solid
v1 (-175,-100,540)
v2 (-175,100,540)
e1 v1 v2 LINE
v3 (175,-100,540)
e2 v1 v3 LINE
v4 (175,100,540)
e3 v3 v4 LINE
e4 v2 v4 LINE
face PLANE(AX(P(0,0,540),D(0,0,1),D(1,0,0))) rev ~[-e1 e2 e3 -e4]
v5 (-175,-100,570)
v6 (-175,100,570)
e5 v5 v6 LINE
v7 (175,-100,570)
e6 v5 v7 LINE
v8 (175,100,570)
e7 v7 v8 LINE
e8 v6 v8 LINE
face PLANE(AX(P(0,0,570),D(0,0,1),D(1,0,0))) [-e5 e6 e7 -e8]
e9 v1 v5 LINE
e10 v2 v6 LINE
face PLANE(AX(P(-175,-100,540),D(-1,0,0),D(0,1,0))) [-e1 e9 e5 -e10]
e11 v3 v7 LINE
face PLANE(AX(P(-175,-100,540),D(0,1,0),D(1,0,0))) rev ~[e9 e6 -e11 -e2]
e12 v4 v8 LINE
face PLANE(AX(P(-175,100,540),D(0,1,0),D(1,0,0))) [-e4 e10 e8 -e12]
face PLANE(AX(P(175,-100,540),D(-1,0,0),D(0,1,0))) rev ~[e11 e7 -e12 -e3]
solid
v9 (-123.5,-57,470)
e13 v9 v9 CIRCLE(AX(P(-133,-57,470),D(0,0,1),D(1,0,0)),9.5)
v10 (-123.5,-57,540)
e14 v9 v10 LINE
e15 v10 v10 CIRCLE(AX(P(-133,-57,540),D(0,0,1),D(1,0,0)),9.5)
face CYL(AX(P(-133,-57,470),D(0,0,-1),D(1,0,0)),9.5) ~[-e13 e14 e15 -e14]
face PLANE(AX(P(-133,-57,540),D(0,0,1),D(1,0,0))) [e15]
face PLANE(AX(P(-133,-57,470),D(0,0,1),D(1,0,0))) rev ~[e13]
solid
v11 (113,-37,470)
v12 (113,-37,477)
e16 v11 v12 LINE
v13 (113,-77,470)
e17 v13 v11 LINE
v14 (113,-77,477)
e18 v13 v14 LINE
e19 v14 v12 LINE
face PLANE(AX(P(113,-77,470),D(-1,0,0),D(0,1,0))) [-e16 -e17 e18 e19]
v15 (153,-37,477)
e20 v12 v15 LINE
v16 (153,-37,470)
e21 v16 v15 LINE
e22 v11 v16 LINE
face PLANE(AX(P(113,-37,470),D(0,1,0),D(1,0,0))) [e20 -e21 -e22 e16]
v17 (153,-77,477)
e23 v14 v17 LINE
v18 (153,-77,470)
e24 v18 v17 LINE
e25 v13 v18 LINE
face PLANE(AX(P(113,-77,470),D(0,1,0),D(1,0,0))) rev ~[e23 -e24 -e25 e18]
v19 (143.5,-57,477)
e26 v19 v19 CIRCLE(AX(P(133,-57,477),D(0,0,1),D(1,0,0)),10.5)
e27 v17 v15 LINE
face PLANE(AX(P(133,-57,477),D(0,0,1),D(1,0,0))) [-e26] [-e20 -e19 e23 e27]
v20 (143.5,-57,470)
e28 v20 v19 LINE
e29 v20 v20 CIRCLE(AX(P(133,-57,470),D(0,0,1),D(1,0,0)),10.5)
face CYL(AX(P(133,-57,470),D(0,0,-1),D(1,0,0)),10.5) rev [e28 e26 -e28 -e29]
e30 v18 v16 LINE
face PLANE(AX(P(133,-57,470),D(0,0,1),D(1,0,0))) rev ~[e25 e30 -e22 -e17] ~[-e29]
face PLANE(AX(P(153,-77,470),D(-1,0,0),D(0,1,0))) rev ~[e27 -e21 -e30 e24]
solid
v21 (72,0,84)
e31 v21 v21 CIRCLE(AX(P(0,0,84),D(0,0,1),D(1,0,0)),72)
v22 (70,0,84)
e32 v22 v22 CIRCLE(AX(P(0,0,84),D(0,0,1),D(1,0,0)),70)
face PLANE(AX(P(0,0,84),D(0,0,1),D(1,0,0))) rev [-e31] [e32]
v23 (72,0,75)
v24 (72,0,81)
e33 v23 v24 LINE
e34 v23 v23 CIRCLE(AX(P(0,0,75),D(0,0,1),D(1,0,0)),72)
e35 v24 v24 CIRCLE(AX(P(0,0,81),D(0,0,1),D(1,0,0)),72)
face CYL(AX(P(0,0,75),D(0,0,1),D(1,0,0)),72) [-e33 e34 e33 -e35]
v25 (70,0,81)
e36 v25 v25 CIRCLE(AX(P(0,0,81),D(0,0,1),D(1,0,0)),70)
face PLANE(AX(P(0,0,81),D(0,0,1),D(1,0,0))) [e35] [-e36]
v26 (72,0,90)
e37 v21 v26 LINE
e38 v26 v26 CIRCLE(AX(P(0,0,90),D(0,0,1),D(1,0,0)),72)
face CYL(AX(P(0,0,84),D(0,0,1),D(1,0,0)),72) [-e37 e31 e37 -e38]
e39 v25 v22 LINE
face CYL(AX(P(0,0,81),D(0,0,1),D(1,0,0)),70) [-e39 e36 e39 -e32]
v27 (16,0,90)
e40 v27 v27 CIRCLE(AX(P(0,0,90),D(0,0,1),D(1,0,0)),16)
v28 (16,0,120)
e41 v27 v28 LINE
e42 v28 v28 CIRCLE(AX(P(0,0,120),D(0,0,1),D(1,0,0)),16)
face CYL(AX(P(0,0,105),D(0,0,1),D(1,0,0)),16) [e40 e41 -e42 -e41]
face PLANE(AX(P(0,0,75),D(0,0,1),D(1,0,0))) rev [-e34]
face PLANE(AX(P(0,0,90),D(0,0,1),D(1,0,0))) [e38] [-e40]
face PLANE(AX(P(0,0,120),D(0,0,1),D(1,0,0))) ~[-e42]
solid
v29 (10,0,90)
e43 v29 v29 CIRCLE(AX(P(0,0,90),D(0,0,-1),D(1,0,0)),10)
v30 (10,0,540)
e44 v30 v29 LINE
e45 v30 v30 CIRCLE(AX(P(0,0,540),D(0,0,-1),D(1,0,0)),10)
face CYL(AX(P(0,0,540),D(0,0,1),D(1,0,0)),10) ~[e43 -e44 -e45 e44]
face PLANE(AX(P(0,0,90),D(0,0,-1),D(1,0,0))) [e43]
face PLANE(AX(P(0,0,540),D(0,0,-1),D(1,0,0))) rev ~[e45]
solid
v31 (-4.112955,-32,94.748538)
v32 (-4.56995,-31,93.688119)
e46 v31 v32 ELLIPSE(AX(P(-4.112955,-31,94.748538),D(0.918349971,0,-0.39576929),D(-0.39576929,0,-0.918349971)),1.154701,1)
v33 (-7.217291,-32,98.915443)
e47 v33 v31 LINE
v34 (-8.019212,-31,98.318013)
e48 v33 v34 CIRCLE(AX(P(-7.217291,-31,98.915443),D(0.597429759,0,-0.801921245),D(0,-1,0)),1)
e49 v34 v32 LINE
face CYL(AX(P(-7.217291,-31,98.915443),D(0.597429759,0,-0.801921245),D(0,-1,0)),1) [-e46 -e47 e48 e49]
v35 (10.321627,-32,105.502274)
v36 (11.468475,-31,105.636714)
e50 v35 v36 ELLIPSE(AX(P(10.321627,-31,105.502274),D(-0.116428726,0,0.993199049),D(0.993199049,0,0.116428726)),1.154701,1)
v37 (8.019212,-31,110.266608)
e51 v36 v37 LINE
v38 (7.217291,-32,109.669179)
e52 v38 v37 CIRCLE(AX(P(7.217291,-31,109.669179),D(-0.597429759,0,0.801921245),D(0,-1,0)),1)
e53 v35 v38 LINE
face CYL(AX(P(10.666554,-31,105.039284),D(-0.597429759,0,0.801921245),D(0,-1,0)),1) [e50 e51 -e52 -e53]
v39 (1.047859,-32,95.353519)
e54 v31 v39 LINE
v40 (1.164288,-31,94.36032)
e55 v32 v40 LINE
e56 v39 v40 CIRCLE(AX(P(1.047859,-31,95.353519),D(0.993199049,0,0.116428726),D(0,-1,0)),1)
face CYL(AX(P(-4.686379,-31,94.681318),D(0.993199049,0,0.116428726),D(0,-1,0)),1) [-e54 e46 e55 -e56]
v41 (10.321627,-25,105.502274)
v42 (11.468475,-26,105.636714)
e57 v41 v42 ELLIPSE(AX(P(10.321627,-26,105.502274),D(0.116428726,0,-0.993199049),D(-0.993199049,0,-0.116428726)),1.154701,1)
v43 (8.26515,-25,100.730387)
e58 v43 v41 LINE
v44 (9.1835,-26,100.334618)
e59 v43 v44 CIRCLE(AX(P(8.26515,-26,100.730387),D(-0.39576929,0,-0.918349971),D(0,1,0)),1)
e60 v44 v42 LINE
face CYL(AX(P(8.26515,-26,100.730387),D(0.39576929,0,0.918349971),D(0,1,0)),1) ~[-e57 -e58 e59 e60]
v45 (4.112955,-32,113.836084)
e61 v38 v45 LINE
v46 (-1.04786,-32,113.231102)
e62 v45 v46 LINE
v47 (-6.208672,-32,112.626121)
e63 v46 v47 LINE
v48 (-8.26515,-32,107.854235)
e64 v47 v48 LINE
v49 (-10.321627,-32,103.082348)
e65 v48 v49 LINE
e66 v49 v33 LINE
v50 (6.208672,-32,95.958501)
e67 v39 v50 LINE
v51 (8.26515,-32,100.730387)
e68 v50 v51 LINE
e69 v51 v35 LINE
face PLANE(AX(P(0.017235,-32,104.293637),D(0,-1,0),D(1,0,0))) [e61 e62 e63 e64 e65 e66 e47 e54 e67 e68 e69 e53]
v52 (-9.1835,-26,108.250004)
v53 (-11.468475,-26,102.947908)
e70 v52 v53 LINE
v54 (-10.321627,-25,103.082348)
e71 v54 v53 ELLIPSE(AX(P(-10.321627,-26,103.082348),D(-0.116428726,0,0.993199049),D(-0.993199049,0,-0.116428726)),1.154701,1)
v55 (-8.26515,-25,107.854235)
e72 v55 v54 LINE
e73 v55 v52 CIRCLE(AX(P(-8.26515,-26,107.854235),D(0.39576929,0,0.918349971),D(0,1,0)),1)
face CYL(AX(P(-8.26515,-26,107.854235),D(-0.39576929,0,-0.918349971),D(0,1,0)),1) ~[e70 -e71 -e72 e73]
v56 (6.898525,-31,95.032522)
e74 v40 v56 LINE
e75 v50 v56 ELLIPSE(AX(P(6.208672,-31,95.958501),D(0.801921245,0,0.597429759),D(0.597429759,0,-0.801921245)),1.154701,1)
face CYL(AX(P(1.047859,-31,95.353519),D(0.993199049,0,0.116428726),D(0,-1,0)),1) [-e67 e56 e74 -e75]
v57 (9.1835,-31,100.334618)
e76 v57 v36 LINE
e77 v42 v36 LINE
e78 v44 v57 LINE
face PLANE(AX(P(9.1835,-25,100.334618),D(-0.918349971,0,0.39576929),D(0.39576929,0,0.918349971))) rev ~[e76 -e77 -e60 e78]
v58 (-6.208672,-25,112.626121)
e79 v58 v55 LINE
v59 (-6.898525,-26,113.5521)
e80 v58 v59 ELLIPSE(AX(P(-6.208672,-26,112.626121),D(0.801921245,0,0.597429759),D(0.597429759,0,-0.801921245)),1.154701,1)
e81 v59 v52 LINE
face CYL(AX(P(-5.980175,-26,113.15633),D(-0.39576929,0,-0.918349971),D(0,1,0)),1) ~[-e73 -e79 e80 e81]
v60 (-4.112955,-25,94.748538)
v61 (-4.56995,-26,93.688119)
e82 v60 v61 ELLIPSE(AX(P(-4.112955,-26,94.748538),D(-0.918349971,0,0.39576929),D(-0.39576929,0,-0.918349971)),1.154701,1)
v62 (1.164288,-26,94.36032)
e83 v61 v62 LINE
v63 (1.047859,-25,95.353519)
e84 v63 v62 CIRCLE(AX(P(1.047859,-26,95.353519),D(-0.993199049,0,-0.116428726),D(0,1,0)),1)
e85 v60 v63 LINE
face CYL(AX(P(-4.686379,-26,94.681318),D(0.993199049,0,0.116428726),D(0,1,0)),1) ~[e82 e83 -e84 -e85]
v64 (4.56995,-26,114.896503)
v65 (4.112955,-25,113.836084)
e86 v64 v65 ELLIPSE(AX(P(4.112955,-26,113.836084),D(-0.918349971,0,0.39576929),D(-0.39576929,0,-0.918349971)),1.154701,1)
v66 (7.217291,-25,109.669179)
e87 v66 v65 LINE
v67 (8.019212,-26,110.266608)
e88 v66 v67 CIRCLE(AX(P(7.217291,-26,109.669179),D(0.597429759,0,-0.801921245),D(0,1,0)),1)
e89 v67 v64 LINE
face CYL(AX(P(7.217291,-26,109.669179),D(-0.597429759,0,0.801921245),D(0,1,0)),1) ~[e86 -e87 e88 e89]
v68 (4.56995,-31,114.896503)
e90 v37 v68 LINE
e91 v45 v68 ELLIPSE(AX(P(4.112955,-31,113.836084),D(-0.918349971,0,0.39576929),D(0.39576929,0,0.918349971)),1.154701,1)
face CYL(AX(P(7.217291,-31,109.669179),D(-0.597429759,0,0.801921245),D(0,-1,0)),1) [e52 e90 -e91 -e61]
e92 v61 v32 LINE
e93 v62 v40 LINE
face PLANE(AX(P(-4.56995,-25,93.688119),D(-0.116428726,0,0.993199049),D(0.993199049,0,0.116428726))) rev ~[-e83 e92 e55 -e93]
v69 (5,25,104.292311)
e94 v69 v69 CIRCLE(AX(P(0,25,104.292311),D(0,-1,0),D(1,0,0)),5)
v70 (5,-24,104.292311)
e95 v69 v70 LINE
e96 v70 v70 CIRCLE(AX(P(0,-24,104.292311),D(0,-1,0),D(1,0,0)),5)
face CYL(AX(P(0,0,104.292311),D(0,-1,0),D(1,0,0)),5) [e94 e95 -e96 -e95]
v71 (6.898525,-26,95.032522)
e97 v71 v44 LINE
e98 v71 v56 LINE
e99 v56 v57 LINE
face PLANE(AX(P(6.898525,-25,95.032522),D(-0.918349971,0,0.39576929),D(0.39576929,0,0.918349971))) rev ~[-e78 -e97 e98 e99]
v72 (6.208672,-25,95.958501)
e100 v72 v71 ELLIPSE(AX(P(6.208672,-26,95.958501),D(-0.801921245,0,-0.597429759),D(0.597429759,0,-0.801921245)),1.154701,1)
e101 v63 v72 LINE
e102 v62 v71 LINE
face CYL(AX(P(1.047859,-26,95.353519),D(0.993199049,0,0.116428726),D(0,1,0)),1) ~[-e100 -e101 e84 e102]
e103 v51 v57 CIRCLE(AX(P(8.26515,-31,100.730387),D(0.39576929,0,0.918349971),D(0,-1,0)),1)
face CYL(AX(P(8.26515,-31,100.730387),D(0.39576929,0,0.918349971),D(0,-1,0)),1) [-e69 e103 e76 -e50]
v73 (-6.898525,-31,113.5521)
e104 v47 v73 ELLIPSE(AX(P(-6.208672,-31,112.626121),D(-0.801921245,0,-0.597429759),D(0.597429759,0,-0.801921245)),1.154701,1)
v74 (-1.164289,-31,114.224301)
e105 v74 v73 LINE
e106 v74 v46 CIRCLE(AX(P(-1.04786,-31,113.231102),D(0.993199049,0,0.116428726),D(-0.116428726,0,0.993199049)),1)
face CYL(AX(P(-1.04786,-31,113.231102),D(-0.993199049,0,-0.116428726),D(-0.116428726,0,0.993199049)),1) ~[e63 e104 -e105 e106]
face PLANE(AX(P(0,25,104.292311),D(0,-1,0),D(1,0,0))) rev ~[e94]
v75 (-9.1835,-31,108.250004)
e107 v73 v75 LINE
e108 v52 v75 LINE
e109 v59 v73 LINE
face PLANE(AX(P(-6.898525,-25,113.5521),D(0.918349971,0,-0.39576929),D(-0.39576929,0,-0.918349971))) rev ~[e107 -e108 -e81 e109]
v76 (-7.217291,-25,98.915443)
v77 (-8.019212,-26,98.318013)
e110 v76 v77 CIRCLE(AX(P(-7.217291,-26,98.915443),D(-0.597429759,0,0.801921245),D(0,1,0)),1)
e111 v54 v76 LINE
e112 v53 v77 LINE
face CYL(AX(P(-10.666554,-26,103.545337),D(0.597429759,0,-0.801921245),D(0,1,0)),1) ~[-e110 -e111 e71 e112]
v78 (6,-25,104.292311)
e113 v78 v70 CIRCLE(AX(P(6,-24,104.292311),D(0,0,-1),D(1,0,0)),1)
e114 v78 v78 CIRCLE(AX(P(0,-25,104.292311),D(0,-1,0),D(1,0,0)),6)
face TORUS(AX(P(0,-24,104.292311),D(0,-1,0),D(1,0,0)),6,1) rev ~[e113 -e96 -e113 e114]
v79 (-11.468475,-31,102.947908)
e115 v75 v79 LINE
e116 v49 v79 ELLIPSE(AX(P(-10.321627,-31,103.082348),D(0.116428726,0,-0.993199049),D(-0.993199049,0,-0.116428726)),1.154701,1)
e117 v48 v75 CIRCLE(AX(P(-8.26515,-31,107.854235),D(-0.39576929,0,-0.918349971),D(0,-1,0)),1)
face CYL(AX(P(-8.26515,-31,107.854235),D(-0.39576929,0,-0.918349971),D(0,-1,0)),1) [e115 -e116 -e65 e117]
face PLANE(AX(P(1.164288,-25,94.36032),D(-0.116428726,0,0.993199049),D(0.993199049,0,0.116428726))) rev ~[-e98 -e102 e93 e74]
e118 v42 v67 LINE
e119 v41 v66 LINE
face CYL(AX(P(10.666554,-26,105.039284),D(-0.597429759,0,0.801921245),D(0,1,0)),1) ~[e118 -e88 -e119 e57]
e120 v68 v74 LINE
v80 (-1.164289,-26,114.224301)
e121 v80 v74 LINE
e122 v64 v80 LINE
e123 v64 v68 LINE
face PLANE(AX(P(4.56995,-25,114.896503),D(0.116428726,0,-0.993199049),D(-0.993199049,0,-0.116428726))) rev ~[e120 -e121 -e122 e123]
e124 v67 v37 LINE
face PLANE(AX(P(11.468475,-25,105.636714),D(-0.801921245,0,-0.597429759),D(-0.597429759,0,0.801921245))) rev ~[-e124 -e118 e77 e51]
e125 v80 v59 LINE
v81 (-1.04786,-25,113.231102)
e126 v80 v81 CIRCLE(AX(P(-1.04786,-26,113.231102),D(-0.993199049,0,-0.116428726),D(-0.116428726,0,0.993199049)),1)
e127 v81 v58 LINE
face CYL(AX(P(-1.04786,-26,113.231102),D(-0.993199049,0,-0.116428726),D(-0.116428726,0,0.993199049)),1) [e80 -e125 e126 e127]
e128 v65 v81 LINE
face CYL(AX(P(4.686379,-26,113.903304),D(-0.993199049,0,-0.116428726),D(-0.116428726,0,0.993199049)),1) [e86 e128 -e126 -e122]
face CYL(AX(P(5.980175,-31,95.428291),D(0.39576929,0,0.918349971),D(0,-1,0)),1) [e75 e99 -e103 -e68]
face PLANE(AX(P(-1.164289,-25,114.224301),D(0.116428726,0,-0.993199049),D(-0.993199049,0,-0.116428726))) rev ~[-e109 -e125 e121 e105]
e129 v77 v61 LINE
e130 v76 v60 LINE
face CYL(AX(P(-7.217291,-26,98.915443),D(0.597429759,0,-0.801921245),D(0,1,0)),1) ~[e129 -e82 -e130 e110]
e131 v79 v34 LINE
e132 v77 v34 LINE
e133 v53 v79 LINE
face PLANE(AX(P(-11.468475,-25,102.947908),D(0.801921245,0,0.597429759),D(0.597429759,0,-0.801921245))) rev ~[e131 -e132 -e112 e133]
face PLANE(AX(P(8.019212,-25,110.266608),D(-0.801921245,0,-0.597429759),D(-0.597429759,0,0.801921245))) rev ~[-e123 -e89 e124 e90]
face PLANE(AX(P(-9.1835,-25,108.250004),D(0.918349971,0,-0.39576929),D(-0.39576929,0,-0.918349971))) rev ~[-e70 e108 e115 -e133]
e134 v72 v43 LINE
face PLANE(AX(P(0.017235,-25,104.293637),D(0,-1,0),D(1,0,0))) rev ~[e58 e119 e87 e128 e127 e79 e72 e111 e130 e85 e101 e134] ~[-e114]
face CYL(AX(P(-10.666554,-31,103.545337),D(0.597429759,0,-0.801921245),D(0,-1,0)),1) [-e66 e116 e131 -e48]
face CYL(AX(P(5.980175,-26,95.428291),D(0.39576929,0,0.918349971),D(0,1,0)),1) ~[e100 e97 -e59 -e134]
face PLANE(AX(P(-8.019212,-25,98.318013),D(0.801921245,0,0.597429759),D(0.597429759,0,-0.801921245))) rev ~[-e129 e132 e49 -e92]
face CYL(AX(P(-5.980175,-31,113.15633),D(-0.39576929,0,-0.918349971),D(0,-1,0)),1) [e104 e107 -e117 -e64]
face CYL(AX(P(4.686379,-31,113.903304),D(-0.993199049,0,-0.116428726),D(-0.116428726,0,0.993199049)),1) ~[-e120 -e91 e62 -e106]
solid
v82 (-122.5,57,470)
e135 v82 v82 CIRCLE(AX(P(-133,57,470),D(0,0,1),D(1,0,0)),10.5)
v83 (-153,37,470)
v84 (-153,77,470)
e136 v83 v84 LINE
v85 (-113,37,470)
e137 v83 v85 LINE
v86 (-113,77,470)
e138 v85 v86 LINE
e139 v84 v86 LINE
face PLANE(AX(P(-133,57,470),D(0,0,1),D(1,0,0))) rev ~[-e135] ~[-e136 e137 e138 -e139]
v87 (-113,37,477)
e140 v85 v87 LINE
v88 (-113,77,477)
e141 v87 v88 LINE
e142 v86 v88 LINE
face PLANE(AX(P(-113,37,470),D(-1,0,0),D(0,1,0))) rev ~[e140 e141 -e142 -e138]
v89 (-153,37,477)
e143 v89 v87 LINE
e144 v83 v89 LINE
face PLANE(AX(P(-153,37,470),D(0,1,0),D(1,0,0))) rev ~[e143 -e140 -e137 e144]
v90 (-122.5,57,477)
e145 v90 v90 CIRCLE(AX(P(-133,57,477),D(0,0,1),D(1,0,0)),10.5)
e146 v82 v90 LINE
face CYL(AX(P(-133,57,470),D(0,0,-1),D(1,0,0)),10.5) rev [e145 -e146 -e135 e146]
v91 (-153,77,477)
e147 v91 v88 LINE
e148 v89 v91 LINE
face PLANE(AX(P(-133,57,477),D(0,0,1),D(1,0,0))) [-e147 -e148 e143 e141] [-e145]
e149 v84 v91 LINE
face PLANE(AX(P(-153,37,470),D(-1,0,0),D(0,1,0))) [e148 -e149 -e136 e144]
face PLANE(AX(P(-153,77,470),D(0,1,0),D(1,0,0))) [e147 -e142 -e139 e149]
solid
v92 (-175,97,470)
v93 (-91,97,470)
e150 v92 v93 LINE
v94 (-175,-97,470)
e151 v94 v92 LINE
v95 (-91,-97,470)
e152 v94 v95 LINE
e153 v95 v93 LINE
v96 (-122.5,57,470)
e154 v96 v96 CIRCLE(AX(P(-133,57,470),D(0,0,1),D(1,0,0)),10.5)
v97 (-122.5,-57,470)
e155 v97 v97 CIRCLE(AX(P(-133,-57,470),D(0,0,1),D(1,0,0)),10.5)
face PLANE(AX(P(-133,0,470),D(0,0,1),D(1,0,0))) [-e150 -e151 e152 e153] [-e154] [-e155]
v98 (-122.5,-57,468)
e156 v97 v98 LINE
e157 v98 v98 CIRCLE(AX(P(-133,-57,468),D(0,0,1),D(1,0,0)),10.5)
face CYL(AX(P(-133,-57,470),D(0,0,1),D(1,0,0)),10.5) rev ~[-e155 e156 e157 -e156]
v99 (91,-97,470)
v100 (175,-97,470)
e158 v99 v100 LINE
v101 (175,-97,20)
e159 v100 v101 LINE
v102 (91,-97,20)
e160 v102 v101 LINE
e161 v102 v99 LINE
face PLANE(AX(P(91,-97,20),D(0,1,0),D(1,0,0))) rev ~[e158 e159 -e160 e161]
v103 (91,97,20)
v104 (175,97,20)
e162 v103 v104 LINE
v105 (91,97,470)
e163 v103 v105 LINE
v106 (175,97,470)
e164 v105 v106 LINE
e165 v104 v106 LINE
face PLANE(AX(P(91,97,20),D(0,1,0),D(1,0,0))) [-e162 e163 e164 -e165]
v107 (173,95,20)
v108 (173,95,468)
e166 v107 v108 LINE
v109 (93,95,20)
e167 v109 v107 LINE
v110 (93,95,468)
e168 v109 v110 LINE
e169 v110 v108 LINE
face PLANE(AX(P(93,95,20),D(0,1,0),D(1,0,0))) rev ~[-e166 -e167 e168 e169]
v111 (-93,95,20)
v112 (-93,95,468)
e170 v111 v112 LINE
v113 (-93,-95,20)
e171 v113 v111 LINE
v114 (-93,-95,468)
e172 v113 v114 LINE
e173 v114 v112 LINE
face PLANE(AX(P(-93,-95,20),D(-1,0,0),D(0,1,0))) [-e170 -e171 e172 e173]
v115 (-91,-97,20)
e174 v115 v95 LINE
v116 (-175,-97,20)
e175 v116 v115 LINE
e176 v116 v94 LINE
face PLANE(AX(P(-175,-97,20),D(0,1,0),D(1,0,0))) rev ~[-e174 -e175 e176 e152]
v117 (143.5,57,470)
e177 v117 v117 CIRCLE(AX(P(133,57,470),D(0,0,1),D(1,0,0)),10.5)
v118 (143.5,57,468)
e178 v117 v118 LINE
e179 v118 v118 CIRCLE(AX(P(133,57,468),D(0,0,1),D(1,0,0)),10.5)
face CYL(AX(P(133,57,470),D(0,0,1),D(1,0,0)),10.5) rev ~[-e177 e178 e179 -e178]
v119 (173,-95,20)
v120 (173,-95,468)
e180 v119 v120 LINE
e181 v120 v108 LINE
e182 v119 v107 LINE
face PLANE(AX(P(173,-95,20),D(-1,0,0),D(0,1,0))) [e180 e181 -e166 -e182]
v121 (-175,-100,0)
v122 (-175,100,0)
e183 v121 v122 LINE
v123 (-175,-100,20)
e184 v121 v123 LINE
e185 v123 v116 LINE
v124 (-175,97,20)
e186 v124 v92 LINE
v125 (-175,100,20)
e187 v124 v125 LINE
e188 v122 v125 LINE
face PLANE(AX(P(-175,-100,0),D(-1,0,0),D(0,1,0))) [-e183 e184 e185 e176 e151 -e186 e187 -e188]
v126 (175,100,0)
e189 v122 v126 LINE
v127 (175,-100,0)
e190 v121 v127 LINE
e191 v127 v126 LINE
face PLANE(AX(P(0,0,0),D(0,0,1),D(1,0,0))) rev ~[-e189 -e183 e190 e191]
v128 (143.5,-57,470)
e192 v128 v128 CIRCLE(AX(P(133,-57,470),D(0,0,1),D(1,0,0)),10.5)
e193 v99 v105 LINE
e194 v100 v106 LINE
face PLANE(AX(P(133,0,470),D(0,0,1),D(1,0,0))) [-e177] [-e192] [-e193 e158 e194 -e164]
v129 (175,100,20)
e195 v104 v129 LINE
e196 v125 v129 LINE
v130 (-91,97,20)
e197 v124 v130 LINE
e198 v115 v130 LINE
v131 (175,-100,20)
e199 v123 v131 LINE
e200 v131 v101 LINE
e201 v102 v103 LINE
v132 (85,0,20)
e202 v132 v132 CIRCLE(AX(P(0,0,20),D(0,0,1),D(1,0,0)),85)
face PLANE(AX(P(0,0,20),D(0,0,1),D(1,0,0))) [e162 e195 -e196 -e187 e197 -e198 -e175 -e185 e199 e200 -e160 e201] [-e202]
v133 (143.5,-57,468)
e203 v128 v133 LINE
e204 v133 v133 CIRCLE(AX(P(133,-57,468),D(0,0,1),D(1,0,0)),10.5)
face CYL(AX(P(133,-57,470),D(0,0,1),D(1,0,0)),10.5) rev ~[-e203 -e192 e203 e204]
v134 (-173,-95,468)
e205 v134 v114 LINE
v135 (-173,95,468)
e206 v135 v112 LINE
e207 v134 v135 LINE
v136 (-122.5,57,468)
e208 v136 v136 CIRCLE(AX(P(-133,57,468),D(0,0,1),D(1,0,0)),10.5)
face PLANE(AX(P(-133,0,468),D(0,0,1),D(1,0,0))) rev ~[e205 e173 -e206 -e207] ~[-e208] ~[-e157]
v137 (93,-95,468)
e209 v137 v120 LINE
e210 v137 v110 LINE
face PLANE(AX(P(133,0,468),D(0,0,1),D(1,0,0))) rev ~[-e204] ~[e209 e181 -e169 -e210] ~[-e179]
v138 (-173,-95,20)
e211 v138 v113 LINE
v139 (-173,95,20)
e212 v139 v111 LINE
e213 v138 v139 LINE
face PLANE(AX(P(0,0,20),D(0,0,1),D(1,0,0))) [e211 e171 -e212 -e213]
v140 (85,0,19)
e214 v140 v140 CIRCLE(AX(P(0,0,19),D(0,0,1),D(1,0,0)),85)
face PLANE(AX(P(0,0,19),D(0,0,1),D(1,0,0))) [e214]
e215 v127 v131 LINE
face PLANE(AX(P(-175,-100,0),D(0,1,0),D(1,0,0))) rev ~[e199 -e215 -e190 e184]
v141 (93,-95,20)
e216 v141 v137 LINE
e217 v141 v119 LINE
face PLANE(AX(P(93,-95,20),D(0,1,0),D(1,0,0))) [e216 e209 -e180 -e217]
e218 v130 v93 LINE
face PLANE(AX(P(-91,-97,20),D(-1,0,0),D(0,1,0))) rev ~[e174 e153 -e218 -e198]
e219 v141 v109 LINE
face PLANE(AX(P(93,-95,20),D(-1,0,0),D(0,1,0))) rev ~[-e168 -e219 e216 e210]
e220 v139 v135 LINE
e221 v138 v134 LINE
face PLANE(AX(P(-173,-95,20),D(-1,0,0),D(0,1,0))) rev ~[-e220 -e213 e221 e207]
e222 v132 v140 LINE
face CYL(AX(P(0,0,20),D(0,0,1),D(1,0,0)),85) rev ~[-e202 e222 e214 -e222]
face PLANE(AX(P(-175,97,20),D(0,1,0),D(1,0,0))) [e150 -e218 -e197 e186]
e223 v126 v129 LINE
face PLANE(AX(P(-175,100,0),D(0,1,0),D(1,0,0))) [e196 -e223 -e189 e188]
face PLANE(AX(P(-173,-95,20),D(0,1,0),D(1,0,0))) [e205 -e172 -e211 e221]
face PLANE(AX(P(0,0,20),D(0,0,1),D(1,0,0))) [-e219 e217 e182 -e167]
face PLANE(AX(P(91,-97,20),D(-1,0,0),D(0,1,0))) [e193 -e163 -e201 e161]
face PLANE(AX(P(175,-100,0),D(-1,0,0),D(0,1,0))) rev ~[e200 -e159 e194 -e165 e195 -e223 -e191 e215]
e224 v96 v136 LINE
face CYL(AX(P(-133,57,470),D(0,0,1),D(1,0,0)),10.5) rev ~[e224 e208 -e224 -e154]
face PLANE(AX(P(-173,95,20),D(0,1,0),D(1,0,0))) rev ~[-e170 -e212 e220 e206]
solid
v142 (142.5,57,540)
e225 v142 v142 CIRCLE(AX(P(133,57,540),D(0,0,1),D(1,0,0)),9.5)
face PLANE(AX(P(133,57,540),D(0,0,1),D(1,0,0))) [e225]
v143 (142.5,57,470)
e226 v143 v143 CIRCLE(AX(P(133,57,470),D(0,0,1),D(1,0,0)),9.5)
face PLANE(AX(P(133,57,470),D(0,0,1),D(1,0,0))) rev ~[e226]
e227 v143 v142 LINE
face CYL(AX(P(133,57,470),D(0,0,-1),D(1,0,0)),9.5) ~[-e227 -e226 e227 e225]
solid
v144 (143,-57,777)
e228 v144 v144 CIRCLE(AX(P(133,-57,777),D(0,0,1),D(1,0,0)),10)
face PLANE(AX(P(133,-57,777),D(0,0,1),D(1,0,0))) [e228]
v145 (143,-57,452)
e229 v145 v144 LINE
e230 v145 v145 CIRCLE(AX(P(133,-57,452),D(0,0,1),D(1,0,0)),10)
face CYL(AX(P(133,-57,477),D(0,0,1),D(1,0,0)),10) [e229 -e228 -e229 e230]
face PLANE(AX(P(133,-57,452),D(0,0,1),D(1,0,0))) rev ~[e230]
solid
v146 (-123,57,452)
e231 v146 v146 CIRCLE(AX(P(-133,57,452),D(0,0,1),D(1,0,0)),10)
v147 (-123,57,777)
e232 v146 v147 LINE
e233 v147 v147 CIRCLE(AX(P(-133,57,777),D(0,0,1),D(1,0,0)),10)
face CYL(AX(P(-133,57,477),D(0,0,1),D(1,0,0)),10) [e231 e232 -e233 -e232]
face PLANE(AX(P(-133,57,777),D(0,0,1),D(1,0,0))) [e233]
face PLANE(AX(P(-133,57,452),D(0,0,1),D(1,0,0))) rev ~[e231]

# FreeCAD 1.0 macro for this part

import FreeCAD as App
import Part
import Sketcher

V = App.Vector
Q = App.Units.Quantity


def edges_at(feature, points):
    """Names of the edges that pass closest to the given points."""
    edges = feature.Shape.Edges
    near = lambda p: min(range(len(edges)), key=lambda i: edges[i].distToShape(Part.Vertex(*p))[0])
    return sorted({f"Edge{near(p) + 1}" for p in points})

doc = App.newDocument("Part")
body = doc.addObject("PartDesign::Body", "Body")

# Sketch on XY plane
sketch1 = body.newObject("Sketcher::SketchObject", "Sketch")
sketch1.AttachmentSupport = (doc.getObject("XY_Plane"), [""])
sketch1.MapMode = "FlatFace"
sketch1.addGeometry(Part.LineSegment(V(-175, 100, 0), V(-175, -100, 0)), False)
sketch1.addGeometry(Part.LineSegment(V(-175, -100, 0), V(175, -100, 0)), False)
sketch1.addGeometry(Part.LineSegment(V(175, -100, 0), V(175, 100, 0)), False)
sketch1.addGeometry(Part.LineSegment(V(175, 100, 0), V(-175, 100, 0)), False)
sketch1.addConstraint(Sketcher.Constraint("Coincident", 0, 2, 1, 1))
sketch1.addConstraint(Sketcher.Constraint("Coincident", 1, 2, 2, 1))
sketch1.addConstraint(Sketcher.Constraint("Coincident", 2, 2, 3, 1))
sketch1.addConstraint(Sketcher.Constraint("Coincident", 3, 2, 0, 1))
sketch1.addConstraint(Sketcher.Constraint("Vertical", 0))
sketch1.addConstraint(Sketcher.Constraint("Horizontal", 1))
sketch1.addConstraint(Sketcher.Constraint("Vertical", 2))
sketch1.addConstraint(Sketcher.Constraint("Horizontal", 3))
sketch1.addConstraint(Sketcher.Constraint("Symmetric", 0, 2, 2, 2, -1, 1))
sketch1.addConstraint(Sketcher.Constraint("DistanceX", 1, 1, 1, 2, Q("350 mm")))
sketch1.addConstraint(Sketcher.Constraint("DistanceY", 0, 2, 0, 1, Q("200 mm")))
pad1 = body.newObject("PartDesign::Pad", "Pad")
pad1.Profile = sketch1
pad1.Length = 20

# Sketch on XY plane
sketch2 = body.newObject("Sketcher::SketchObject", "Sketch001")
sketch2.AttachmentSupport = (doc.getObject("XY_Plane"), [""])
sketch2.MapMode = "FlatFace"
sketch2.AttachmentOffset = App.Placement(V(0, 0, 20), App.Rotation())
sketch2.addGeometry(Part.LineSegment(V(-175, 97, 0), V(-175, -97, 0)), False)
sketch2.addGeometry(Part.LineSegment(V(-175, -97, 0), V(-91, -97, 0)), False)
sketch2.addGeometry(Part.LineSegment(V(-91, -97, 0), V(-91, 97, 0)), False)
sketch2.addGeometry(Part.LineSegment(V(-91, 97, 0), V(-175, 97, 0)), False)
sketch2.addGeometry(Part.LineSegment(V(-93, -95, 0), V(-173, -95, 0)), False)
sketch2.addGeometry(Part.LineSegment(V(-173, -95, 0), V(-173, 95, 0)), False)
sketch2.addGeometry(Part.LineSegment(V(-173, 95, 0), V(-93, 95, 0)), False)
sketch2.addGeometry(Part.LineSegment(V(-93, 95, 0), V(-93, -95, 0)), False)
sketch2.addGeometry(Part.LineSegment(V(91, 97, 0), V(91, -97, 0)), False)
sketch2.addGeometry(Part.LineSegment(V(91, -97, 0), V(175, -97, 0)), False)
sketch2.addGeometry(Part.LineSegment(V(175, -97, 0), V(175, 97, 0)), False)
sketch2.addGeometry(Part.LineSegment(V(175, 97, 0), V(91, 97, 0)), False)
sketch2.addGeometry(Part.LineSegment(V(173, -95, 0), V(93, -95, 0)), False)
sketch2.addGeometry(Part.LineSegment(V(93, -95, 0), V(93, 95, 0)), False)
sketch2.addGeometry(Part.LineSegment(V(93, 95, 0), V(173, 95, 0)), False)
sketch2.addGeometry(Part.LineSegment(V(173, 95, 0), V(173, -95, 0)), False)
sketch2.addConstraint(Sketcher.Constraint("Coincident", 0, 2, 1, 1))
sketch2.addConstraint(Sketcher.Constraint("Coincident", 1, 2, 2, 1))
sketch2.addConstraint(Sketcher.Constraint("Coincident", 2, 2, 3, 1))
sketch2.addConstraint(Sketcher.Constraint("Coincident", 3, 2, 0, 1))
sketch2.addConstraint(Sketcher.Constraint("Coincident", 4, 2, 5, 1))
sketch2.addConstraint(Sketcher.Constraint("Coincident", 5, 2, 6, 1))
sketch2.addConstraint(Sketcher.Constraint("Coincident", 6, 2, 7, 1))
sketch2.addConstraint(Sketcher.Constraint("Coincident", 7, 2, 4, 1))
sketch2.addConstraint(Sketcher.Constraint("Coincident", 8, 2, 9, 1))
sketch2.addConstraint(Sketcher.Constraint("Coincident", 9, 2, 10, 1))
sketch2.addConstraint(Sketcher.Constraint("Coincident", 10, 2, 11, 1))
sketch2.addConstraint(Sketcher.Constraint("Coincident", 11, 2, 8, 1))
sketch2.addConstraint(Sketcher.Constraint("Coincident", 12, 2, 13, 1))
sketch2.addConstraint(Sketcher.Constraint("Coincident", 13, 2, 14, 1))
sketch2.addConstraint(Sketcher.Constraint("Coincident", 14, 2, 15, 1))
sketch2.addConstraint(Sketcher.Constraint("Coincident", 15, 2, 12, 1))
sketch2.addConstraint(Sketcher.Constraint("Vertical", 0))
sketch2.addConstraint(Sketcher.Constraint("Horizontal", 1))
sketch2.addConstraint(Sketcher.Constraint("Vertical", 2))
sketch2.addConstraint(Sketcher.Constraint("Horizontal", 3))
sketch2.addConstraint(Sketcher.Constraint("Horizontal", 4))
sketch2.addConstraint(Sketcher.Constraint("Vertical", 5))
sketch2.addConstraint(Sketcher.Constraint("Horizontal", 6))
sketch2.addConstraint(Sketcher.Constraint("Vertical", 7))
sketch2.addConstraint(Sketcher.Constraint("Vertical", 8))
sketch2.addConstraint(Sketcher.Constraint("Horizontal", 9))
sketch2.addConstraint(Sketcher.Constraint("Vertical", 10))
sketch2.addConstraint(Sketcher.Constraint("Horizontal", 11))
sketch2.addConstraint(Sketcher.Constraint("Horizontal", 12))
sketch2.addConstraint(Sketcher.Constraint("Vertical", 13))
sketch2.addConstraint(Sketcher.Constraint("Horizontal", 14))
sketch2.addConstraint(Sketcher.Constraint("Vertical", 15))
sketch2.addConstraint(Sketcher.Constraint("Symmetric", 2, 2, 8, 2, -1, 1))
sketch2.addConstraint(Sketcher.Constraint("Symmetric", 0, 2, 10, 2, -1, 1))
sketch2.addConstraint(Sketcher.Constraint("Symmetric", 6, 2, 12, 2, -1, 1))
sketch2.addConstraint(Sketcher.Constraint("Symmetric", 4, 2, 14, 2, -1, 1))
sketch2.addConstraint(Sketcher.Constraint("Horizontal", 1, 2, 8, 2))
sketch2.addConstraint(Sketcher.Constraint("Horizontal", 7, 2, 12, 2))
sketch2.addConstraint(Sketcher.Constraint("DistanceX", 1, 1, 1, 2, Q("84 mm")))
sketch2.addConstraint(Sketcher.Constraint("DistanceX", 4, 2, 4, 1, Q("80 mm")))
sketch2.addConstraint(Sketcher.Constraint("DistanceY", 0, 2, 0, 1, Q("194 mm")))
sketch2.addConstraint(Sketcher.Constraint("DistanceY", 5, 1, 5, 2, Q("190 mm")))
sketch2.addConstraint(Sketcher.Constraint("DistanceX", 0, 2, -1, 1, Q("175 mm")))
sketch2.addConstraint(Sketcher.Constraint("DistanceX", 4, 2, -1, 1, Q("173 mm")))
pad2 = body.newObject("PartDesign::Pad", "Pad001")
pad2.Profile = sketch2
pad2.Length = 450

# Sketch on XY plane
sketch3 = body.newObject("Sketcher::SketchObject", "Sketch002")
sketch3.AttachmentSupport = (doc.getObject("XY_Plane"), [""])
sketch3.MapMode = "FlatFace"
sketch3.AttachmentOffset = App.Placement(V(0, 0, 470), App.Rotation())
sketch3.addGeometry(Part.LineSegment(V(-173, 95, 0), V(-173, -95, 0)), False)
sketch3.addGeometry(Part.LineSegment(V(-173, -95, 0), V(-93, -95, 0)), False)
sketch3.addGeometry(Part.LineSegment(V(-93, -95, 0), V(-93, 95, 0)), False)
sketch3.addGeometry(Part.LineSegment(V(-93, 95, 0), V(-173, 95, 0)), False)
sketch3.addGeometry(Part.Circle(V(-133, -57, 0), V(0, 0, 1), 10), False)
sketch3.addGeometry(Part.Circle(V(-133, 57, 0), V(0, 0, 1), 10), False)
sketch3.addGeometry(Part.LineSegment(V(91, 97, 0), V(91, -97, 0)), False)
sketch3.addGeometry(Part.LineSegment(V(91, -97, 0), V(175, -97, 0)), False)
sketch3.addGeometry(Part.LineSegment(V(175, -97, 0), V(175, 97, 0)), False)
sketch3.addGeometry(Part.LineSegment(V(175, 97, 0), V(91, 97, 0)), False)
sketch3.addGeometry(Part.Circle(V(133, -57, 0), V(0, 0, 1), 10), False)
sketch3.addGeometry(Part.Circle(V(133, 57, 0), V(0, 0, 1), 10), False)
sketch3.addConstraint(Sketcher.Constraint("Coincident", 0, 2, 1, 1))
sketch3.addConstraint(Sketcher.Constraint("Coincident", 1, 2, 2, 1))
sketch3.addConstraint(Sketcher.Constraint("Coincident", 2, 2, 3, 1))
sketch3.addConstraint(Sketcher.Constraint("Coincident", 3, 2, 0, 1))
sketch3.addConstraint(Sketcher.Constraint("Coincident", 6, 2, 7, 1))
sketch3.addConstraint(Sketcher.Constraint("Coincident", 7, 2, 8, 1))
sketch3.addConstraint(Sketcher.Constraint("Coincident", 8, 2, 9, 1))
sketch3.addConstraint(Sketcher.Constraint("Coincident", 9, 2, 6, 1))
sketch3.addConstraint(Sketcher.Constraint("Vertical", 0))
sketch3.addConstraint(Sketcher.Constraint("Horizontal", 1))
sketch3.addConstraint(Sketcher.Constraint("Vertical", 2))
sketch3.addConstraint(Sketcher.Constraint("Horizontal", 3))
sketch3.addConstraint(Sketcher.Constraint("Vertical", 6))
sketch3.addConstraint(Sketcher.Constraint("Horizontal", 7))
sketch3.addConstraint(Sketcher.Constraint("Vertical", 8))
sketch3.addConstraint(Sketcher.Constraint("Horizontal", 9))
sketch3.addConstraint(Sketcher.Constraint("Equal", 4, 5))
sketch3.addConstraint(Sketcher.Constraint("Equal", 5, 10))
sketch3.addConstraint(Sketcher.Constraint("Equal", 10, 11))
sketch3.addConstraint(Sketcher.Constraint("Symmetric", 5, 3, 10, 3, -1, 1))
sketch3.addConstraint(Sketcher.Constraint("Symmetric", 4, 3, 11, 3, -1, 1))
sketch3.addConstraint(Sketcher.Constraint("Symmetric", 4, 3, 10, 3, -2))
sketch3.addConstraint(Sketcher.Constraint("Diameter", 4, Q("21 mm")))
sketch3.addConstraint(Sketcher.Constraint("DistanceX", 1, 1, 1, 2, Q("80 mm")))
sketch3.addConstraint(Sketcher.Constraint("DistanceX", 7, 1, 7, 2, Q("84 mm")))
sketch3.addConstraint(Sketcher.Constraint("DistanceY", 0, 2, 0, 1, Q("190 mm")))
sketch3.addConstraint(Sketcher.Constraint("DistanceY", 6, 2, 6, 1, Q("194 mm")))
sketch3.addConstraint(Sketcher.Constraint("DistanceX", 4, 3, -1, 1, Q("133 mm")))
sketch3.addConstraint(Sketcher.Constraint("DistanceY", 4, 3, -1, 1, Q("57 mm")))
sketch3.addConstraint(Sketcher.Constraint("DistanceX", 0, 2, -1, 1, Q("173 mm")))
sketch3.addConstraint(Sketcher.Constraint("DistanceY", 0, 2, -1, 1, Q("95 mm")))
sketch3.addConstraint(Sketcher.Constraint("DistanceX", -1, 1, 6, 2, Q("91 mm")))
sketch3.addConstraint(Sketcher.Constraint("DistanceY", 6, 2, -1, 1, Q("97 mm")))
pad3 = body.newObject("PartDesign::Pad", "Pad002")
pad3.Profile = sketch3
pad3.Length = 2
pad3.Reversed = True

# Sketch on XY plane
sketch4 = body.newObject("Sketcher::SketchObject", "Sketch003")
sketch4.AttachmentSupport = (doc.getObject("XY_Plane"), [""])
sketch4.MapMode = "FlatFace"
sketch4.AttachmentOffset = App.Placement(V(0, 0, 20), App.Rotation())
sketch4.addGeometry(Part.Circle(V(0, 0, 0), V(0, 0, 1), 85), False)
sketch4.addConstraint(Sketcher.Constraint("Coincident", 0, 3, -1, 1))
sketch4.addConstraint(Sketcher.Constraint("Diameter", 0, Q("170 mm")))
pocket1 = body.newObject("PartDesign::Pocket", "Pocket")
pocket1.Profile = sketch4
pocket1.Length = 1
body2 = doc.addObject("PartDesign::Body", "Body001")

# Sketch on XY plane
sketch5 = body2.newObject("Sketcher::SketchObject", "Sketch004")
sketch5.AttachmentSupport = (doc.getObject("XY_Plane001"), [""])
sketch5.MapMode = "FlatFace"
sketch5.AttachmentOffset = App.Placement(V(0, 0, 470), App.Rotation())
sketch5.addGeometry(Part.Circle(V(-133, -57, 0), V(0, 0, 1), 10), False)
sketch5.addConstraint(Sketcher.Constraint("Diameter", 0, Q("19 mm")))
sketch5.addConstraint(Sketcher.Constraint("DistanceX", 0, 3, -1, 1, Q("133 mm")))
sketch5.addConstraint(Sketcher.Constraint("DistanceY", 0, 3, -1, 1, Q("57 mm")))
pad4 = body2.newObject("PartDesign::Pad", "Pad003")
pad4.Profile = sketch5
pad4.Length = 70
body3 = doc.addObject("PartDesign::Body", "Body002")

# Sketch on XY plane
sketch6 = body3.newObject("Sketcher::SketchObject", "Sketch005")
sketch6.AttachmentSupport = (doc.getObject("XY_Plane002"), [""])
sketch6.MapMode = "FlatFace"
sketch6.AttachmentOffset = App.Placement(V(0, 0, 470), App.Rotation())
sketch6.addGeometry(Part.Circle(V(133, 57, 0), V(0, 0, 1), 10), False)
sketch6.addConstraint(Sketcher.Constraint("Diameter", 0, Q("19 mm")))
sketch6.addConstraint(Sketcher.Constraint("DistanceX", -1, 1, 0, 3, Q("133 mm")))
sketch6.addConstraint(Sketcher.Constraint("DistanceY", -1, 1, 0, 3, Q("57 mm")))
pad5 = body3.newObject("PartDesign::Pad", "Pad004")
pad5.Profile = sketch6
pad5.Length = 70
body4 = doc.addObject("PartDesign::Body", "Body003")

# Sketch on XY plane
sketch7 = body4.newObject("Sketcher::SketchObject", "Sketch006")
sketch7.AttachmentSupport = (doc.getObject("XY_Plane003"), [""])
sketch7.MapMode = "FlatFace"
sketch7.AttachmentOffset = App.Placement(V(0, 0, 540), App.Rotation())
sketch7.addGeometry(Part.LineSegment(V(-175, 100, 0), V(-175, -100, 0)), False)
sketch7.addGeometry(Part.LineSegment(V(-175, -100, 0), V(175, -100, 0)), False)
sketch7.addGeometry(Part.LineSegment(V(175, -100, 0), V(175, 100, 0)), False)
sketch7.addGeometry(Part.LineSegment(V(175, 100, 0), V(-175, 100, 0)), False)
sketch7.addConstraint(Sketcher.Constraint("Coincident", 0, 2, 1, 1))
sketch7.addConstraint(Sketcher.Constraint("Coincident", 1, 2, 2, 1))
sketch7.addConstraint(Sketcher.Constraint("Coincident", 2, 2, 3, 1))
sketch7.addConstraint(Sketcher.Constraint("Coincident", 3, 2, 0, 1))
sketch7.addConstraint(Sketcher.Constraint("Vertical", 0))
sketch7.addConstraint(Sketcher.Constraint("Horizontal", 1))
sketch7.addConstraint(Sketcher.Constraint("Vertical", 2))
sketch7.addConstraint(Sketcher.Constraint("Horizontal", 3))
sketch7.addConstraint(Sketcher.Constraint("Symmetric", 0, 2, 2, 2, -1, 1))
sketch7.addConstraint(Sketcher.Constraint("DistanceX", 1, 1, 1, 2, Q("350 mm")))
sketch7.addConstraint(Sketcher.Constraint("DistanceY", 0, 2, 0, 1, Q("200 mm")))
pad6 = body4.newObject("PartDesign::Pad", "Pad005")
pad6.Profile = sketch7
pad6.Length = 30
body5 = doc.addObject("PartDesign::Body", "Body004")

# Sketch on XY plane
sketch8 = body5.newObject("Sketcher::SketchObject", "Sketch007")
sketch8.AttachmentSupport = (doc.getObject("XY_Plane004"), [""])
sketch8.MapMode = "FlatFace"
sketch8.AttachmentOffset = App.Placement(V(0, 0, 540), App.Rotation())
sketch8.addGeometry(Part.Circle(V(0, 0, 0), V(0, 0, 1), 10), False)
sketch8.addConstraint(Sketcher.Constraint("Coincident", 0, 3, -1, 1))
sketch8.addConstraint(Sketcher.Constraint("Diameter", 0, Q("20 mm")))
pad7 = body5.newObject("PartDesign::Pad", "Pad006")
pad7.Profile = sketch8
pad7.Length = 450
pad7.Reversed = True
body6 = doc.addObject("PartDesign::Body", "Body005")

# Sketch on XZ plane
sketch9 = body6.newObject("Sketcher::SketchObject", "Sketch008")
sketch9.AttachmentSupport = (doc.getObject("XZ_Plane005"), [""])
sketch9.MapMode = "FlatFace"
sketch9.addGeometry(Part.LineSegment(V(0, 75, 0), V(72, 75, 0)), False)
sketch9.addGeometry(Part.LineSegment(V(72, 75, 0), V(72, 81, 0)), False)
sketch9.addGeometry(Part.LineSegment(V(72, 81, 0), V(70, 81, 0)), False)
sketch9.addGeometry(Part.LineSegment(V(70, 81, 0), V(70, 84, 0)), False)
sketch9.addGeometry(Part.LineSegment(V(70, 84, 0), V(72, 84, 0)), False)
sketch9.addGeometry(Part.LineSegment(V(72, 84, 0), V(72, 90, 0)), False)
sketch9.addGeometry(Part.LineSegment(V(72, 90, 0), V(16, 90, 0)), False)
sketch9.addGeometry(Part.LineSegment(V(16, 90, 0), V(16, 120, 0)), False)
sketch9.addGeometry(Part.LineSegment(V(16, 120, 0), V(0, 120, 0)), False)
sketch9.addGeometry(Part.LineSegment(V(0, 120, 0), V(0, 75, 0)), False)
sketch9.addConstraint(Sketcher.Constraint("Coincident", 0, 2, 1, 1))
sketch9.addConstraint(Sketcher.Constraint("Coincident", 1, 2, 2, 1))
sketch9.addConstraint(Sketcher.Constraint("Coincident", 2, 2, 3, 1))
sketch9.addConstraint(Sketcher.Constraint("Coincident", 3, 2, 4, 1))
sketch9.addConstraint(Sketcher.Constraint("Coincident", 4, 2, 5, 1))
sketch9.addConstraint(Sketcher.Constraint("Coincident", 5, 2, 6, 1))
sketch9.addConstraint(Sketcher.Constraint("Coincident", 6, 2, 7, 1))
sketch9.addConstraint(Sketcher.Constraint("Coincident", 7, 2, 8, 1))
sketch9.addConstraint(Sketcher.Constraint("Coincident", 8, 2, 9, 1))
sketch9.addConstraint(Sketcher.Constraint("Coincident", 9, 2, 0, 1))
sketch9.addConstraint(Sketcher.Constraint("Horizontal", 0))
sketch9.addConstraint(Sketcher.Constraint("Vertical", 1))
sketch9.addConstraint(Sketcher.Constraint("Horizontal", 2))
sketch9.addConstraint(Sketcher.Constraint("Vertical", 3))
sketch9.addConstraint(Sketcher.Constraint("Horizontal", 4))
sketch9.addConstraint(Sketcher.Constraint("Vertical", 5))
sketch9.addConstraint(Sketcher.Constraint("Horizontal", 6))
sketch9.addConstraint(Sketcher.Constraint("Vertical", 7))
sketch9.addConstraint(Sketcher.Constraint("Horizontal", 8))
sketch9.addConstraint(Sketcher.Constraint("Vertical", 9))
sketch9.addConstraint(Sketcher.Constraint("PointOnObject", 8, 2, -2))
sketch9.addConstraint(Sketcher.Constraint("Vertical", 1, 2, 4, 2))
sketch9.addConstraint(Sketcher.Constraint("Equal", 1, 5))
sketch9.addConstraint(Sketcher.Constraint("DistanceX", 0, 1, 0, 2, Q("72 mm")))
sketch9.addConstraint(Sketcher.Constraint("DistanceX", 2, 2, 2, 1, Q("2 mm")))
sketch9.addConstraint(Sketcher.Constraint("DistanceX", 6, 2, 6, 1, Q("56 mm")))
sketch9.addConstraint(Sketcher.Constraint("DistanceY", 1, 1, 1, 2, Q("6 mm")))
sketch9.addConstraint(Sketcher.Constraint("DistanceY", 3, 1, 3, 2, Q("3 mm")))
sketch9.addConstraint(Sketcher.Constraint("DistanceY", 7, 1, 7, 2, Q("30 mm")))
sketch9.addConstraint(Sketcher.Constraint("DistanceY", -1, 1, 0, 2, Q("75 mm")))
revolution = body6.newObject("PartDesign::Revolution", "Revolution")
revolution.Profile = sketch9
revolution.ReferenceAxis = (sketch9, ["V_Axis"])
revolution.Angle = 360
body7 = doc.addObject("PartDesign::Body", "Body006")

# Sketch on XZ plane
sketch10 = body7.newObject("Sketcher::SketchObject", "Sketch009")
sketch10.AttachmentSupport = (doc.getObject("XZ_Plane006"), [""])
sketch10.MapMode = "FlatFace"
sketch10.addGeometry(Part.Circle(V(0, 104, 0), V(0, 0, 1), 5), False)
sketch10.addConstraint(Sketcher.Constraint("PointOnObject", 0, 3, -2))
sketch10.addConstraint(Sketcher.Constraint("Diameter", 0, Q("10 mm")))
sketch10.addConstraint(Sketcher.Constraint("DistanceY", -1, 1, 0, 3, Q("104.292311 mm")))
pad8 = body7.newObject("PartDesign::Pad", "Pad007")
pad8.Profile = sketch10
pad8.Type = "TwoLengths"
pad8.Length = 25
pad8.Length2 = 25

# Sketch on XZ plane
sketch11 = body7.newObject("Sketcher::SketchObject", "Sketch010")
sketch11.AttachmentSupport = (doc.getObject("XZ_Plane006"), [""])
sketch11.MapMode = "FlatFace"
sketch11.AttachmentOffset = App.Placement(V(0, 0, 25), App.Rotation())
sketch11.addGeometry(Part.LineSegment(V(-1, 114, 0), V(-7, 114, 0)), False)
sketch11.addGeometry(Part.LineSegment(V(-7, 114, 0), V(-9, 108, 0)), False)
sketch11.addGeometry(Part.LineSegment(V(-9, 108, 0), V(-11, 103, 0)), False)
sketch11.addGeometry(Part.LineSegment(V(-11, 103, 0), V(-8, 98, 0)), False)
sketch11.addGeometry(Part.LineSegment(V(-8, 98, 0), V(-5, 94, 0)), False)
sketch11.addGeometry(Part.LineSegment(V(-5, 94, 0), V(1, 94, 0)), False)
sketch11.addGeometry(Part.LineSegment(V(1, 94, 0), V(7, 95, 0)), False)
sketch11.addGeometry(Part.LineSegment(V(7, 95, 0), V(9, 100, 0)), False)
sketch11.addGeometry(Part.LineSegment(V(9, 100, 0), V(11, 106, 0)), False)
sketch11.addGeometry(Part.LineSegment(V(11, 106, 0), V(8, 110, 0)), False)
sketch11.addGeometry(Part.LineSegment(V(8, 110, 0), V(5, 115, 0)), False)
sketch11.addGeometry(Part.LineSegment(V(5, 115, 0), V(-1, 114, 0)), False)
sketch11.addConstraint(Sketcher.Constraint("Coincident", 0, 2, 1, 1))
sketch11.addConstraint(Sketcher.Constraint("Coincident", 1, 2, 2, 1))
sketch11.addConstraint(Sketcher.Constraint("Coincident", 2, 2, 3, 1))
sketch11.addConstraint(Sketcher.Constraint("Coincident", 3, 2, 4, 1))
sketch11.addConstraint(Sketcher.Constraint("Coincident", 4, 2, 5, 1))
sketch11.addConstraint(Sketcher.Constraint("Coincident", 5, 2, 6, 1))
sketch11.addConstraint(Sketcher.Constraint("Coincident", 6, 2, 7, 1))
sketch11.addConstraint(Sketcher.Constraint("Coincident", 7, 2, 8, 1))
sketch11.addConstraint(Sketcher.Constraint("Coincident", 8, 2, 9, 1))
sketch11.addConstraint(Sketcher.Constraint("Coincident", 9, 2, 10, 1))
sketch11.addConstraint(Sketcher.Constraint("Coincident", 10, 2, 11, 1))
sketch11.addConstraint(Sketcher.Constraint("Coincident", 11, 2, 0, 1))
sketch11.addConstraint(Sketcher.Constraint("Parallel", 1, 2))
sketch11.addConstraint(Sketcher.Constraint("Parallel", 3, 4))
sketch11.addConstraint(Sketcher.Constraint("Parallel", 0, 5))
sketch11.addConstraint(Sketcher.Constraint("Parallel", 5, 6))
sketch11.addConstraint(Sketcher.Constraint("Parallel", 2, 7))
sketch11.addConstraint(Sketcher.Constraint("Parallel", 7, 8))
sketch11.addConstraint(Sketcher.Constraint("Parallel", 4, 9))
sketch11.addConstraint(Sketcher.Constraint("Parallel", 9, 10))
sketch11.addConstraint(Sketcher.Constraint("Parallel", 6, 11))
sketch11.addConstraint(Sketcher.Constraint("Equal", 0, 1))
sketch11.addConstraint(Sketcher.Constraint("Equal", 1, 2))
sketch11.addConstraint(Sketcher.Constraint("Equal", 2, 3))
sketch11.addConstraint(Sketcher.Constraint("Equal", 3, 4))
sketch11.addConstraint(Sketcher.Constraint("Equal", 4, 5))
sketch11.addConstraint(Sketcher.Constraint("Equal", 5, 6))
sketch11.addConstraint(Sketcher.Constraint("Equal", 6, 7))
sketch11.addConstraint(Sketcher.Constraint("Equal", 7, 8))
sketch11.addConstraint(Sketcher.Constraint("Equal", 8, 9))
sketch11.addConstraint(Sketcher.Constraint("DistanceX", 2, 2, 6, 2, Q("18.366999 mm")))
sketch11.addConstraint(Sketcher.Constraint("Distance", 0, Q("5.773501 mm")))
sketch11.addConstraint(Sketcher.Constraint("DistanceY", -1, 1, 0, 2, Q("113.5521 mm")))
sketch11.addConstraint(Sketcher.Constraint("DistanceX", 1, 2, -1, 1, Q("9.1835 mm")))
sketch11.addConstraint(Sketcher.Constraint("DistanceY", -1, 1, 11, 2, Q("114.224301 mm")))
sketch11.addConstraint(Sketcher.Constraint("DistanceY", 4, 2, 7, 2, Q("6.646499 mm")))
pad9 = body7.newObject("PartDesign::Pad", "Pad008")
pad9.Profile = sketch11
pad9.Length = 7
doc.recompute()

fillet = body7.newObject("PartDesign::Fillet", "Fillet")
fillet.Base = (pad9, edges_at(pad9, [
    (-10.326, -32, 105.599),
    (-6.295, -32, 96.003),
    (-1.703, -32, 94.024),
    (10.326, -32, 102.986),
    (9.744, -32, 107.952),
    (1.703, -32, 114.56),
    (-10.326, -25, 105.599),
    (1.703, -25, 114.56),
    (-6.295, -25, 96.003),
    (6.295, -25, 112.582),
    (-1.703, -25, 94.024),
    (10.326, -25, 102.986),
    (-5, -25, 104.292),
]))
fillet.Radius = 1
body8 = doc.addObject("PartDesign::Body", "Body007")

# Sketch on XY plane
sketch12 = body8.newObject("Sketcher::SketchObject", "Sketch011")
sketch12.AttachmentSupport = (doc.getObject("XY_Plane007"), [""])
sketch12.MapMode = "FlatFace"
sketch12.AttachmentOffset = App.Placement(V(0, 0, 470), App.Rotation())
sketch12.addGeometry(Part.LineSegment(V(-153, 77, 0), V(-153, 37, 0)), False)
sketch12.addGeometry(Part.LineSegment(V(-153, 37, 0), V(-113, 37, 0)), False)
sketch12.addGeometry(Part.LineSegment(V(-113, 37, 0), V(-113, 77, 0)), False)
sketch12.addGeometry(Part.LineSegment(V(-113, 77, 0), V(-153, 77, 0)), False)
sketch12.addGeometry(Part.Circle(V(-133, 57, 0), V(0, 0, 1), 10), False)
sketch12.addConstraint(Sketcher.Constraint("Coincident", 0, 2, 1, 1))
sketch12.addConstraint(Sketcher.Constraint("Coincident", 1, 2, 2, 1))
sketch12.addConstraint(Sketcher.Constraint("Coincident", 2, 2, 3, 1))
sketch12.addConstraint(Sketcher.Constraint("Coincident", 3, 2, 0, 1))
sketch12.addConstraint(Sketcher.Constraint("Vertical", 0))
sketch12.addConstraint(Sketcher.Constraint("Horizontal", 1))
sketch12.addConstraint(Sketcher.Constraint("Vertical", 2))
sketch12.addConstraint(Sketcher.Constraint("Horizontal", 3))
sketch12.addConstraint(Sketcher.Constraint("Equal", 3, 0))
sketch12.addConstraint(Sketcher.Constraint("Diameter", 4, Q("21 mm")))
sketch12.addConstraint(Sketcher.Constraint("DistanceX", 1, 1, 1, 2, Q("40 mm")))
sketch12.addConstraint(Sketcher.Constraint("DistanceX", 4, 3, -1, 1, Q("133 mm")))
sketch12.addConstraint(Sketcher.Constraint("DistanceY", -1, 1, 4, 3, Q("57 mm")))
sketch12.addConstraint(Sketcher.Constraint("DistanceX", 0, 2, -1, 1, Q("153 mm")))
sketch12.addConstraint(Sketcher.Constraint("DistanceY", -1, 1, 0, 2, Q("37 mm")))
pad10 = body8.newObject("PartDesign::Pad", "Pad009")
pad10.Profile = sketch12
pad10.Length = 7
body9 = doc.addObject("PartDesign::Body", "Body008")

# Sketch on XY plane
sketch13 = body9.newObject("Sketcher::SketchObject", "Sketch012")
sketch13.AttachmentSupport = (doc.getObject("XY_Plane008"), [""])
sketch13.MapMode = "FlatFace"
sketch13.AttachmentOffset = App.Placement(V(0, 0, 470), App.Rotation())
sketch13.addGeometry(Part.LineSegment(V(113, -37, 0), V(113, -77, 0)), False)
sketch13.addGeometry(Part.LineSegment(V(113, -77, 0), V(153, -77, 0)), False)
sketch13.addGeometry(Part.LineSegment(V(153, -77, 0), V(153, -37, 0)), False)
sketch13.addGeometry(Part.LineSegment(V(153, -37, 0), V(113, -37, 0)), False)
sketch13.addGeometry(Part.Circle(V(133, -57, 0), V(0, 0, 1), 10), False)
sketch13.addConstraint(Sketcher.Constraint("Coincident", 0, 2, 1, 1))
sketch13.addConstraint(Sketcher.Constraint("Coincident", 1, 2, 2, 1))
sketch13.addConstraint(Sketcher.Constraint("Coincident", 2, 2, 3, 1))
sketch13.addConstraint(Sketcher.Constraint("Coincident", 3, 2, 0, 1))
sketch13.addConstraint(Sketcher.Constraint("Vertical", 0))
sketch13.addConstraint(Sketcher.Constraint("Horizontal", 1))
sketch13.addConstraint(Sketcher.Constraint("Vertical", 2))
sketch13.addConstraint(Sketcher.Constraint("Horizontal", 3))
sketch13.addConstraint(Sketcher.Constraint("Equal", 3, 0))
sketch13.addConstraint(Sketcher.Constraint("Diameter", 4, Q("21 mm")))
sketch13.addConstraint(Sketcher.Constraint("DistanceX", 1, 1, 1, 2, Q("40 mm")))
sketch13.addConstraint(Sketcher.Constraint("DistanceX", -1, 1, 4, 3, Q("133 mm")))
sketch13.addConstraint(Sketcher.Constraint("DistanceY", 4, 3, -1, 1, Q("57 mm")))
sketch13.addConstraint(Sketcher.Constraint("DistanceX", -1, 1, 0, 2, Q("113 mm")))
sketch13.addConstraint(Sketcher.Constraint("DistanceY", 0, 2, -1, 1, Q("77 mm")))
pad11 = body9.newObject("PartDesign::Pad", "Pad010")
pad11.Profile = sketch13
pad11.Length = 7
body10 = doc.addObject("PartDesign::Body", "Body009")

# Sketch on XY plane
sketch14 = body10.newObject("Sketcher::SketchObject", "Sketch013")
sketch14.AttachmentSupport = (doc.getObject("XY_Plane009"), [""])
sketch14.MapMode = "FlatFace"
sketch14.AttachmentOffset = App.Placement(V(0, 0, 477), App.Rotation())
sketch14.addGeometry(Part.Circle(V(-133, 57, 0), V(0, 0, 1), 10), False)
sketch14.addConstraint(Sketcher.Constraint("Diameter", 0, Q("20 mm")))
sketch14.addConstraint(Sketcher.Constraint("DistanceX", 0, 3, -1, 1, Q("133 mm")))
sketch14.addConstraint(Sketcher.Constraint("DistanceY", -1, 1, 0, 3, Q("57 mm")))
pad12 = body10.newObject("PartDesign::Pad", "Pad011")
pad12.Profile = sketch14
pad12.Type = "TwoLengths"
pad12.Length = 300
pad12.Length2 = 25
body11 = doc.addObject("PartDesign::Body", "Body010")

# Sketch on XY plane
sketch15 = body11.newObject("Sketcher::SketchObject", "Sketch014")
sketch15.AttachmentSupport = (doc.getObject("XY_Plane010"), [""])
sketch15.MapMode = "FlatFace"
sketch15.AttachmentOffset = App.Placement(V(0, 0, 477), App.Rotation())
sketch15.addGeometry(Part.Circle(V(133, -57, 0), V(0, 0, 1), 10), False)
sketch15.addConstraint(Sketcher.Constraint("Diameter", 0, Q("20 mm")))
sketch15.addConstraint(Sketcher.Constraint("DistanceX", -1, 1, 0, 3, Q("133 mm")))
sketch15.addConstraint(Sketcher.Constraint("DistanceY", 0, 3, -1, 1, Q("57 mm")))
pad13 = body11.newObject("PartDesign::Pad", "Pad012")
pad13.Profile = sketch15
pad13.Type = "TwoLengths"
pad13.Length = 300
pad13.Length2 = 25

doc.recompute()
